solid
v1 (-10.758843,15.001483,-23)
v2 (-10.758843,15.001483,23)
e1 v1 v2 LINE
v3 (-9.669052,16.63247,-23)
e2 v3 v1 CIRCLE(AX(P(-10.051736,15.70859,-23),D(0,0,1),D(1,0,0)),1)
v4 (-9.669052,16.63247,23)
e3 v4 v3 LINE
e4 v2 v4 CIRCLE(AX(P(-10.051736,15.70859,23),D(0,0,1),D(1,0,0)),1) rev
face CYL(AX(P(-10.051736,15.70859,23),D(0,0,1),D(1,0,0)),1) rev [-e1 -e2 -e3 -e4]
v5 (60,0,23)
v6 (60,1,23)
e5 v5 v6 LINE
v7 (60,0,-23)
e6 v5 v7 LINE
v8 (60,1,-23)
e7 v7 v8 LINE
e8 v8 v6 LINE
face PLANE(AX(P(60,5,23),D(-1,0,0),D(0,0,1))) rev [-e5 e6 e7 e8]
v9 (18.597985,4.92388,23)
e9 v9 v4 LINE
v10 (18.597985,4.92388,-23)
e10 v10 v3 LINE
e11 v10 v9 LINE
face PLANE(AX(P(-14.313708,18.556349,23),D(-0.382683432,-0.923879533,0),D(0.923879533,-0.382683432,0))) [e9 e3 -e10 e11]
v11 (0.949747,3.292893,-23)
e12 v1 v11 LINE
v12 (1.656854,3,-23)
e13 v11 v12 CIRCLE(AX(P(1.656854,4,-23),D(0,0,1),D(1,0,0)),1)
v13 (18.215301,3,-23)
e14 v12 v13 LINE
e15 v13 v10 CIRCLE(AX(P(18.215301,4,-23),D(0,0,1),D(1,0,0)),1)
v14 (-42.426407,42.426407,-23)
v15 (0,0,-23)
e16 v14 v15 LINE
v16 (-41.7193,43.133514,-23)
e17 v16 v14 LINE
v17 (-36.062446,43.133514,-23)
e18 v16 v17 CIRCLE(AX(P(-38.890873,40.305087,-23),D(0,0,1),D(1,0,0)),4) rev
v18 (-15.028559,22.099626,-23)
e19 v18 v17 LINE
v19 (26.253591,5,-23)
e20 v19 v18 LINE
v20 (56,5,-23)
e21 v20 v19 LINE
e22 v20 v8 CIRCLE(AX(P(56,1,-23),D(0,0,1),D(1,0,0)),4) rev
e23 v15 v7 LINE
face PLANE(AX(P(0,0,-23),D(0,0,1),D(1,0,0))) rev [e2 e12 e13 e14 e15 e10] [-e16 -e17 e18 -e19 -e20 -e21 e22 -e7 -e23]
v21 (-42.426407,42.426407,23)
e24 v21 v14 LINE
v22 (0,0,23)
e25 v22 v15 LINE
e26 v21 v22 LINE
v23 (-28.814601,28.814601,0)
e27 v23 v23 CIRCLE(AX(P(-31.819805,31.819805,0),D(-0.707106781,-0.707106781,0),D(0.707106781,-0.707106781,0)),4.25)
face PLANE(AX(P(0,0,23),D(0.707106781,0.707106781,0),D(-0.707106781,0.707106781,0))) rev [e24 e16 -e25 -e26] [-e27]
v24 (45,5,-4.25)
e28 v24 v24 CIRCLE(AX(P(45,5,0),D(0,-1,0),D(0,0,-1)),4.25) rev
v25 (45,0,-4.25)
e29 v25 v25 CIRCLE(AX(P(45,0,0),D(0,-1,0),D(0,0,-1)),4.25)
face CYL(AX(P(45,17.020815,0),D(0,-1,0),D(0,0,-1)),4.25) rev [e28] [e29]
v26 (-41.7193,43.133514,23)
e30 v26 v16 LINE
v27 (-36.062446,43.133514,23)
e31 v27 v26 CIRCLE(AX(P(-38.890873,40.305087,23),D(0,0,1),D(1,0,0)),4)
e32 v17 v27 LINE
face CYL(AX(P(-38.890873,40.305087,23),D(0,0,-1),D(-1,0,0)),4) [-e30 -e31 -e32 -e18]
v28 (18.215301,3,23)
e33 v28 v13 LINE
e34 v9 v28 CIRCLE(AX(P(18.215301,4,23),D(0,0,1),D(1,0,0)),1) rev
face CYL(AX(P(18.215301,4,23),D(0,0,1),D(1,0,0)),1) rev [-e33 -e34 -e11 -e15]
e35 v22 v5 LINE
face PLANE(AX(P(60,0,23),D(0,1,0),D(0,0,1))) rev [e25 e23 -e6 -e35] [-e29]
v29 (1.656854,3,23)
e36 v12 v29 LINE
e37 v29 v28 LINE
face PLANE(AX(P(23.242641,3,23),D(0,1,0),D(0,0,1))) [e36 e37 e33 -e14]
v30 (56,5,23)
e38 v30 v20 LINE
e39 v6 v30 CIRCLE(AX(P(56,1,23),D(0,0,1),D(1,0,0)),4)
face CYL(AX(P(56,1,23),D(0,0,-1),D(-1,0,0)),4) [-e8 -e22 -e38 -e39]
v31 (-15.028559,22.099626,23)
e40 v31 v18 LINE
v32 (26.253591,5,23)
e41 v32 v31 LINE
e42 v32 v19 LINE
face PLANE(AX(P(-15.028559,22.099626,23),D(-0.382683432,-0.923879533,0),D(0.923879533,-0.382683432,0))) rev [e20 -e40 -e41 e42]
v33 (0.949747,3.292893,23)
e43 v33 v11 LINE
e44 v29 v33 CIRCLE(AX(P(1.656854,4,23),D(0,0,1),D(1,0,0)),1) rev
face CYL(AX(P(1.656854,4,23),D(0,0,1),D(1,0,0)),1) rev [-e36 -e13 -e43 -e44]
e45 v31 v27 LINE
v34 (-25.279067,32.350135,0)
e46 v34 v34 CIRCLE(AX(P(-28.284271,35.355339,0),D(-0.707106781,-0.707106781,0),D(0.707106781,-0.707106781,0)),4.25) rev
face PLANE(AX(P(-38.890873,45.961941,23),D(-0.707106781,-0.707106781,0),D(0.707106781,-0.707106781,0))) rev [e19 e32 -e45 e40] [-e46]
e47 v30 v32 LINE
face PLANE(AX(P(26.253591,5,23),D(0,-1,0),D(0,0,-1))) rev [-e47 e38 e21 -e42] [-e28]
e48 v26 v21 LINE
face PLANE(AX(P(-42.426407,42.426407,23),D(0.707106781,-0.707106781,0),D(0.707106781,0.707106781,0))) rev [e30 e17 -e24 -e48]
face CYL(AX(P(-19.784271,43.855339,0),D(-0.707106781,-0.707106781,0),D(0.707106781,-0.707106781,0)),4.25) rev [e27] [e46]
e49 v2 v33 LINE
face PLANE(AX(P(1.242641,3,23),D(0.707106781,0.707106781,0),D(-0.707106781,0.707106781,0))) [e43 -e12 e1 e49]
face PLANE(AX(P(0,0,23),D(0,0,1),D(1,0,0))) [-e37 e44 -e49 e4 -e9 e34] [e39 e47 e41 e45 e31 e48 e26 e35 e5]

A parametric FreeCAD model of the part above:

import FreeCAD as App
import Part
import Sketcher
from FreeCAD import Vector
Q = App.Units.Quantity


def edges_at(feature, points):
    """Names of the edges that pass closest to the given points."""
    edges = feature.Shape.Edges
    near = lambda p: min(range(len(edges)), key=lambda i: edges[i].distToShape(Part.Vertex(*p))[0])
    return sorted({f"Edge{near(p) + 1}" for p in points})


def add_polygon(sketch, points):
    """Adds a closed chain of lines whose ends are joined by coincident constraints."""
    first, n = sketch.GeometryCount, len(points)
    for a, b in zip(points, points[1:] + points[:1]):
        sketch.addGeometry(Part.LineSegment(App.Vector(*a, 0), App.Vector(*b, 0)), False)
    for i in range(n):
        sketch.addConstraint(Sketcher.Constraint("Coincident", first + i, 2, first + (i + 1) % n, 1))

doc = App.newDocument("Part")
params = doc.addObject("Spreadsheet::Sheet", "Params")
for row, (alias, value) in enumerate([
    ("sketch1_width", "60 mm"),
    ("sketch1_width2", "22 mm"),
    ("sketch1_height", "5 mm"),
    ("sketch1_length", "60 mm"),
    ("sketch1_length2", "5 mm"),
    ("pad1_length", "46 mm"),
    ("sketch2_diameter", "8.5 mm"),
    ("pocket1_length", "5 mm"),
    ("sketch3_diameter", "8.5 mm"),
    ("pocket2_length", "5 mm"),
    ("fillet_radius", "4 mm"),
    ("fillet2_radius", "1 mm"),
], start=1):
    params.set(f"A{row}", alias)
    params.set(f"B{row}", "=" + value)
    params.setAlias(f"B{row}", alias)

body = doc.addObject("PartDesign::Body", "Body")

sketch1 = doc.addObject("Sketcher::SketchObject", "Sketch")
body.addObject(sketch1)
sketch1.AttachmentSupport = (doc.XY_Plane, [""])
sketch1.MapMode = "FlatFace"
add_polygon(sketch1, [(-42.426407, 42.426407), (0, 0), (60, 0), (60, 5), (26.253591, 5), (-15.028559, 22.099626), (-38.890873, 45.961941)])
add_polygon(sketch1, [(-14.313708, 18.556349), (23.242641, 3), (1.242641, 3)])
sketch1.addConstraint([
    Sketcher.Constraint("Horizontal", 1),
    Sketcher.Constraint("Vertical", 2),
    Sketcher.Constraint("Horizontal", 3),
    Sketcher.Constraint("Horizontal", 8),
    Sketcher.Constraint("Coincident", 0, 2, -1, 1),
    Sketcher.Constraint("Parallel", 0, 5),
    Sketcher.Constraint("Perpendicular", 5, 6),
    Sketcher.Constraint("Parallel", 4, 7),
    Sketcher.Constraint("Perpendicular", 6, 9),
    Sketcher.Constraint("DistanceX", 1, 1, 1, 2, 60.0),
    Sketcher.Constraint("DistanceX", 8, 2, 8, 1, 22.0),
    Sketcher.Constraint("DistanceY", 2, 1, 2, 2, 5.0),
    Sketcher.Constraint("Angle", 0, Q("-45 deg")),
    Sketcher.Constraint("Distance", 0, 60.0),
    Sketcher.Constraint("Distance", 6, 5.0),
    Sketcher.Constraint("Distance", 9, 22.0),
    Sketcher.Constraint("DistanceY", -1, 1, 7, 2, 3.0),
    Sketcher.Constraint("DistanceX", 6, 2, 3, 2, 68.679998),
    Sketcher.Constraint("DistanceX", 4, 2, 7, 2, 38.271199),
])
sketch1.setExpression("Constraints[19]", "Params.sketch1_width")
sketch1.setExpression("Constraints[20]", "Params.sketch1_width2")
sketch1.setExpression("Constraints[21]", "Params.sketch1_height")
sketch1.setExpression("Constraints[23]", "Params.sketch1_length")
sketch1.setExpression("Constraints[24]", "Params.sketch1_length2")
pad1 = doc.addObject("PartDesign::Pad", "Pad")
body.addObject(pad1)
pad1.Profile = sketch1
pad1.setExpression("Length", "Params.pad1_length")
pad1.Midplane = True

sketch2 = doc.addObject("Sketcher::SketchObject", "Sketch001")
body.addObject(sketch2)
sketch2.Placement = App.Placement(Vector(0, 0, 0), App.Rotation(Vector(0, 0, 1), Vector(-0.707106781, 0.707106781, 0), Vector(-0.707106781, -0.707106781, 0), "ZXY"))
sketch2.addGeometry(Part.Circle(Vector(0, 45, 0), Vector(0, 0, 1), 4.25), False)
sketch2.addConstraint([
    Sketcher.Constraint("PointOnObject", 0, 3, -2),
    Sketcher.Constraint("Diameter", 0, 8.5),
    Sketcher.Constraint("DistanceY", -1, 1, 0, 3, 45.0),
])
sketch2.setExpression("Constraints[1]", "Params.sketch2_diameter")
pocket1 = doc.addObject("PartDesign::Pocket", "Pocket")
body.addObject(pocket1)
pocket1.Profile = sketch2
pocket1.setExpression("Length", "Params.pocket1_length")

sketch3 = doc.addObject("Sketcher::SketchObject", "Sketch002")
body.addObject(sketch3)
sketch3.AttachmentSupport = (doc.XZ_Plane, [""])
sketch3.MapMode = "FlatFace"
sketch3.addGeometry(Part.Circle(Vector(45, 0, 0), Vector(0, 0, 1), 4.25), False)
sketch3.addConstraint([
    Sketcher.Constraint("PointOnObject", 0, 3, -1),
    Sketcher.Constraint("Diameter", 0, 8.5),
    Sketcher.Constraint("DistanceX", -1, 1, 0, 3, 45.0),
])
sketch3.setExpression("Constraints[1]", "Params.sketch3_diameter")
pocket2 = doc.addObject("PartDesign::Pocket", "Pocket001")
body.addObject(pocket2)
pocket2.Profile = sketch3
pocket2.setExpression("Length", "Params.pocket2_length")
doc.recompute()

fillet = doc.addObject("PartDesign::Fillet", "Fillet")
body.addObject(fillet)
fillet.Base = (pocket2, edges_at(pocket2, [(-38.891, 45.962, 0), (60, 5, 0)]))
fillet.setExpression("Radius", "Params.fillet_radius")
doc.recompute()

fillet2 = doc.addObject("PartDesign::Fillet", "Fillet001")
body.addObject(fillet2)
fillet2.Base = (fillet, edges_at(fillet, [(-14.314, 18.556, 0), (1.243, 3, 0), (23.243, 3, 0)]))
fillet2.setExpression("Radius", "Params.fillet2_radius")

doc.recompute()
